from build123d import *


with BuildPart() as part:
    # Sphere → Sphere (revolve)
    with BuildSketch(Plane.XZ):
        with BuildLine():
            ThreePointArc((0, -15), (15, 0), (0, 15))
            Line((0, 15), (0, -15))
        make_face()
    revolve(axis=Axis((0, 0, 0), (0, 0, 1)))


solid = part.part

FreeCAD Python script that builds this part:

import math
import FreeCAD as App
import Part
import Sketcher

V = App.Vector
Q = App.Units.Quantity

doc = App.newDocument("Part")
body = doc.addObject("PartDesign::Body", "Body")

# Sketch on XZ plane
sketch1 = doc.addObject("Sketcher::SketchObject", "Sketch")
body.addObject(sketch1)
sketch1.AttachmentSupport = (doc.XZ_Plane, [""])
sketch1.MapMode = "FlatFace"
sketch1.addGeometry(Part.ArcOfCircle(Part.Circle(V(0, 0, 0), V(0, 0, 1), 15), math.radians(-90), math.radians(90)), False)
sketch1.addGeometry(Part.LineSegment(V(0, 15, 0), V(0, -15, 0)), False)
sketch1.addConstraint(Sketcher.Constraint("Coincident", 0, 1, 1, 2))
sketch1.addConstraint(Sketcher.Constraint("Coincident", 1, 1, 0, 2))
sketch1.addConstraint(Sketcher.Constraint("Vertical", 1))
sketch1.addConstraint(Sketcher.Constraint("Coincident", 0, 3, -1, 1))
sketch1.addConstraint(Sketcher.Constraint("PointOnObject", 0, 1, -2))
sketch1.addConstraint(Sketcher.Constraint("Radius", 0, Q("15 mm")))
revolution = doc.addObject("PartDesign::Revolution", "Revolution")
body.addObject(revolution)
revolution.Profile = sketch1
revolution.ReferenceAxis = (sketch1, ["V_Axis"])
revolution.Angle = 360

doc.recompute()
